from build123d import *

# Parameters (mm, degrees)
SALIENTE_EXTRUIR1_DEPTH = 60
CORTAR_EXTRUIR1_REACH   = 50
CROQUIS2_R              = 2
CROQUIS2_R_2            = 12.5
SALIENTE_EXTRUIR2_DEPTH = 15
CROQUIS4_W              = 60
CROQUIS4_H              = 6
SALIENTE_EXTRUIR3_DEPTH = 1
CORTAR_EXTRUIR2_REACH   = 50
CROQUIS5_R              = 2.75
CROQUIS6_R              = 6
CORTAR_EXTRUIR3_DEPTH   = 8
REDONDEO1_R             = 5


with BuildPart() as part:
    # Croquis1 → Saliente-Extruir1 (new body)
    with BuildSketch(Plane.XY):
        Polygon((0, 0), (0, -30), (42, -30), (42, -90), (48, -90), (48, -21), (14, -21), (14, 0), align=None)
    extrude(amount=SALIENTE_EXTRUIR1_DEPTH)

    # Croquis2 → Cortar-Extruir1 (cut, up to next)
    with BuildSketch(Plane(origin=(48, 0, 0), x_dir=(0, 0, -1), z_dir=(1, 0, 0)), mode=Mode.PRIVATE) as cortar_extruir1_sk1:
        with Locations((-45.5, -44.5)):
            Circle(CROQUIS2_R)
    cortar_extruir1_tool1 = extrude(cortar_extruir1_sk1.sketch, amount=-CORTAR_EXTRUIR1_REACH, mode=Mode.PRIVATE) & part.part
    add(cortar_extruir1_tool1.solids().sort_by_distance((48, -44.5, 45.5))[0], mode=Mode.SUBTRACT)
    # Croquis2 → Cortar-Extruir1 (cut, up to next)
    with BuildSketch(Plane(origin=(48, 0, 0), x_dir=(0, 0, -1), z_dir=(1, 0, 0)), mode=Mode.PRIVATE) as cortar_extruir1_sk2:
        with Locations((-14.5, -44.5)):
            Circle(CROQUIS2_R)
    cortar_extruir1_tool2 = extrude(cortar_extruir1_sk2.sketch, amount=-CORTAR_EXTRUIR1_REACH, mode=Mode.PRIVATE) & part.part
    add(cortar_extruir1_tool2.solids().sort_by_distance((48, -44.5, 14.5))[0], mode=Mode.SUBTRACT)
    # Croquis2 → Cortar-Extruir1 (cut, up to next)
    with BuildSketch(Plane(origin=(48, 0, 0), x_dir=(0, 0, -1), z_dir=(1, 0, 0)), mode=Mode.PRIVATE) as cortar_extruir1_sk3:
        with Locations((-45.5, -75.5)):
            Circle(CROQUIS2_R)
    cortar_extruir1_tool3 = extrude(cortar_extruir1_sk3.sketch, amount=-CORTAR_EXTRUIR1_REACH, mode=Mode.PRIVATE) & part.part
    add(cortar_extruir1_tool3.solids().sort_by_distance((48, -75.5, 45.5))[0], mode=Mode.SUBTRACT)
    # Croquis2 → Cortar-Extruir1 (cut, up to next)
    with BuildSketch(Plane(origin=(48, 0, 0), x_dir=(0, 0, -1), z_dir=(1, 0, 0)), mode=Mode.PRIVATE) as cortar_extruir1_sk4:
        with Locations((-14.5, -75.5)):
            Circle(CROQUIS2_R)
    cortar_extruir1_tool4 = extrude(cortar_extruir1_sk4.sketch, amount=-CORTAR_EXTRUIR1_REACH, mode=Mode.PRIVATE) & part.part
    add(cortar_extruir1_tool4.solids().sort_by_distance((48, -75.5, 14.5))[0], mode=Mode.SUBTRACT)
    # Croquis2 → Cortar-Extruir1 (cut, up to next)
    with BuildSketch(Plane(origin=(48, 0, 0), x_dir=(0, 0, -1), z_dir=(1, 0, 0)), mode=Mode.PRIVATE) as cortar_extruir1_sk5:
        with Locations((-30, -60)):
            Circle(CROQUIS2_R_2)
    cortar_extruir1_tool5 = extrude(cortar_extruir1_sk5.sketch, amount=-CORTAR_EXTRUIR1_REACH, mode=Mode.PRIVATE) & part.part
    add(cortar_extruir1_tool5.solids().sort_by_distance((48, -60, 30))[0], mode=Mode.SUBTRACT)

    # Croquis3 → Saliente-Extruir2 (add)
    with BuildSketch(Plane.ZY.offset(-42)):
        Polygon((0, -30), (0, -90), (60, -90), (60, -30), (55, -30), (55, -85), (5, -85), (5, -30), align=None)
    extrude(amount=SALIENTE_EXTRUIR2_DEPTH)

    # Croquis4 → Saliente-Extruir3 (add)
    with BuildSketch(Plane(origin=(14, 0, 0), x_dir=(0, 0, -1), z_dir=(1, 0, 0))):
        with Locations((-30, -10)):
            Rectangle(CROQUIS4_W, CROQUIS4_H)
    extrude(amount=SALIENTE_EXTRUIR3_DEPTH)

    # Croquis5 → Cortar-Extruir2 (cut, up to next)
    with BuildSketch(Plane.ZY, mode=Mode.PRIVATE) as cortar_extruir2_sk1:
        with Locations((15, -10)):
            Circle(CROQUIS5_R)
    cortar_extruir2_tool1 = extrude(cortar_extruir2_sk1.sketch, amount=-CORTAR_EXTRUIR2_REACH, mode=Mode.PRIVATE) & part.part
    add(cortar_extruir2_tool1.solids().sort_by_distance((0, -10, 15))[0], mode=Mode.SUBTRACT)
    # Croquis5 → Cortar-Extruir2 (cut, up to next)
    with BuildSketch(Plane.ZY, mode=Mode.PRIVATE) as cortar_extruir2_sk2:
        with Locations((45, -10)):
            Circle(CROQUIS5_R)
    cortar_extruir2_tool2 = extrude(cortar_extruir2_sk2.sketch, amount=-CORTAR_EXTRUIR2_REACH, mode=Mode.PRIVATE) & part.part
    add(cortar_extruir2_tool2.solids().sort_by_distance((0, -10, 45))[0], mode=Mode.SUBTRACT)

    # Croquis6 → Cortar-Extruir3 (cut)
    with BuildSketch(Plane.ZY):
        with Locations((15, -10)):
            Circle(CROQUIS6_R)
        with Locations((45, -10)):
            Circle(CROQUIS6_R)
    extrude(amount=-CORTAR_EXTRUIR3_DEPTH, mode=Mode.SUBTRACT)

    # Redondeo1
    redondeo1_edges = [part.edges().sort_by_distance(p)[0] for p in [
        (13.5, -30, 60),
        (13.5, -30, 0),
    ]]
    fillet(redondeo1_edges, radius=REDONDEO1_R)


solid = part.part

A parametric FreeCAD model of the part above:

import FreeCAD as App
import Part
import Sketcher
from FreeCAD import Vector


def edges_at(feature, points):
    """Names of the edges that pass closest to the given points."""
    edges = feature.Shape.Edges
    near = lambda p: min(range(len(edges)), key=lambda i: edges[i].distToShape(Part.Vertex(*p))[0])
    return sorted({f"Edge{near(p) + 1}" for p in points})


def add_polygon(sketch, points):
    """Adds a closed chain of lines whose ends are joined by coincident constraints."""
    first, n = sketch.GeometryCount, len(points)
    for a, b in zip(points, points[1:] + points[:1]):
        sketch.addGeometry(Part.LineSegment(App.Vector(*a, 0), App.Vector(*b, 0)), False)
    for i in range(n):
        sketch.addConstraint(Sketcher.Constraint("Coincident", first + i, 2, first + (i + 1) % n, 1))

doc = App.newDocument("Part")
body = doc.addObject("PartDesign::Body", "Body")

# Sketch on XY plane
sketch1 = doc.addObject("Sketcher::SketchObject", "Sketch")
body.addObject(sketch1)
sketch1.AttachmentSupport = (doc.XY_Plane, [""])
sketch1.MapMode = "FlatFace"
add_polygon(sketch1, [(0, 0), (0, -30), (42, -30), (42, -90), (48, -90), (48, -21), (14, -21), (14, 0)])  # lines 0-7
sketch1.addConstraint([
    Sketcher.Constraint("Vertical", 0),
    Sketcher.Constraint("Horizontal", 1),
    Sketcher.Constraint("Vertical", 2),
    Sketcher.Constraint("Horizontal", 3),
    Sketcher.Constraint("Vertical", 4),
    Sketcher.Constraint("Horizontal", 5),
    Sketcher.Constraint("Vertical", 6),
    Sketcher.Constraint("Horizontal", 7),
    Sketcher.Constraint("Coincident", 7, 2, -1, 1),
    Sketcher.Constraint("DistanceX", 1, 1, 1, 2, 42.0),
    Sketcher.Constraint("DistanceX", 3, 1, 3, 2, 6.0),
    Sketcher.Constraint("DistanceX", 5, 2, 5, 1, 34.0),
    Sketcher.Constraint("DistanceY", 0, 2, 0, 1, 30.0),
    Sketcher.Constraint("DistanceY", 2, 2, 2, 1, 60.0),
    Sketcher.Constraint("DistanceY", 4, 1, 4, 2, 69.0),
])
pad1 = doc.addObject("PartDesign::Pad", "Pad")
body.addObject(pad1)
pad1.Profile = sketch1
pad1.Length = 60

# Sketch on YZ plane
sketch2 = doc.addObject("Sketcher::SketchObject", "Sketch001")
body.addObject(sketch2)
sketch2.AttachmentSupport = (doc.YZ_Plane, [""])
sketch2.MapMode = "FlatFace"
sketch2.AttachmentOffset = App.Placement(Vector(0, 0, 48), App.Rotation())
sketch2.addGeometry(Part.Circle(Vector(-44.5, 45.5, 0), Vector(0, 0, 1), 2), False)
sketch2.addConstraint([
    Sketcher.Constraint("Diameter", 0, 4.0),
    Sketcher.Constraint("DistanceX", 0, 3, -1, 1, 44.5),
    Sketcher.Constraint("DistanceY", -1, 1, 0, 3, 45.5),
])
pocket1 = doc.addObject("PartDesign::Pocket", "Pocket")
body.addObject(pocket1)
pocket1.Profile = sketch2
pocket1.Type = "UpToFirst"

# Sketch on YZ plane
sketch3 = doc.addObject("Sketcher::SketchObject", "Sketch002")
body.addObject(sketch3)
sketch3.AttachmentSupport = (doc.YZ_Plane, [""])
sketch3.MapMode = "FlatFace"
sketch3.AttachmentOffset = App.Placement(Vector(0, 0, 48), App.Rotation())
sketch3.addGeometry(Part.Circle(Vector(-44.5, 14.5, 0), Vector(0, 0, 1), 2), False)
sketch3.addConstraint([
    Sketcher.Constraint("Diameter", 0, 4.0),
    Sketcher.Constraint("DistanceX", 0, 3, -1, 1, 44.5),
    Sketcher.Constraint("DistanceY", -1, 1, 0, 3, 14.5),
])
pocket2 = doc.addObject("PartDesign::Pocket", "Pocket001")
body.addObject(pocket2)
pocket2.Profile = sketch3
pocket2.Type = "UpToFirst"

# Sketch on YZ plane
sketch4 = doc.addObject("Sketcher::SketchObject", "Sketch003")
body.addObject(sketch4)
sketch4.AttachmentSupport = (doc.YZ_Plane, [""])
sketch4.MapMode = "FlatFace"
sketch4.AttachmentOffset = App.Placement(Vector(0, 0, 48), App.Rotation())
sketch4.addGeometry(Part.Circle(Vector(-75.5, 45.5, 0), Vector(0, 0, 1), 2), False)
sketch4.addConstraint([
    Sketcher.Constraint("Diameter", 0, 4.0),
    Sketcher.Constraint("DistanceX", 0, 3, -1, 1, 75.5),
    Sketcher.Constraint("DistanceY", -1, 1, 0, 3, 45.5),
])
pocket3 = doc.addObject("PartDesign::Pocket", "Pocket002")
body.addObject(pocket3)
pocket3.Profile = sketch4
pocket3.Type = "UpToFirst"

# Sketch on YZ plane
sketch5 = doc.addObject("Sketcher::SketchObject", "Sketch004")
body.addObject(sketch5)
sketch5.AttachmentSupport = (doc.YZ_Plane, [""])
sketch5.MapMode = "FlatFace"
sketch5.AttachmentOffset = App.Placement(Vector(0, 0, 48), App.Rotation())
sketch5.addGeometry(Part.Circle(Vector(-75.5, 14.5, 0), Vector(0, 0, 1), 2), False)
sketch5.addConstraint([
    Sketcher.Constraint("Diameter", 0, 4.0),
    Sketcher.Constraint("DistanceX", 0, 3, -1, 1, 75.5),
    Sketcher.Constraint("DistanceY", -1, 1, 0, 3, 14.5),
])
pocket4 = doc.addObject("PartDesign::Pocket", "Pocket003")
body.addObject(pocket4)
pocket4.Profile = sketch5
pocket4.Type = "UpToFirst"

# Sketch on YZ plane
sketch6 = doc.addObject("Sketcher::SketchObject", "Sketch005")
body.addObject(sketch6)
sketch6.AttachmentSupport = (doc.YZ_Plane, [""])
sketch6.MapMode = "FlatFace"
sketch6.AttachmentOffset = App.Placement(Vector(0, 0, 48), App.Rotation())
sketch6.addGeometry(Part.Circle(Vector(-60, 30, 0), Vector(0, 0, 1), 12), False)
sketch6.addConstraint([
    Sketcher.Constraint("Diameter", 0, 25.0),
    Sketcher.Constraint("DistanceX", 0, 3, -1, 1, 60.0),
    Sketcher.Constraint("DistanceY", -1, 1, 0, 3, 30.0),
])
pocket5 = doc.addObject("PartDesign::Pocket", "Pocket004")
body.addObject(pocket5)
pocket5.Profile = sketch6
pocket5.Type = "UpToFirst"

# Sketch on YZ plane
sketch7 = doc.addObject("Sketcher::SketchObject", "Sketch006")
body.addObject(sketch7)
sketch7.AttachmentSupport = (doc.YZ_Plane, [""])
sketch7.MapMode = "FlatFace"
sketch7.AttachmentOffset = App.Placement(Vector(0, 0, 42), App.Rotation())
add_polygon(sketch7, [(-30, 0), (-90, 0), (-90, 60), (-30, 60), (-30, 55), (-85, 55), (-85, 5), (-30, 5)])  # lines 0-7
sketch7.addConstraint([
    Sketcher.Constraint("Horizontal", 0),
    Sketcher.Constraint("Vertical", 1),
    Sketcher.Constraint("Horizontal", 2),
    Sketcher.Constraint("Vertical", 3),
    Sketcher.Constraint("Horizontal", 4),
    Sketcher.Constraint("Vertical", 5),
    Sketcher.Constraint("Horizontal", 6),
    Sketcher.Constraint("Vertical", 7),
    Sketcher.Constraint("PointOnObject", 0, 2, -1),
    Sketcher.Constraint("Vertical", 3, 2, 6, 2),
    Sketcher.Constraint("Equal", 2, 1),
    Sketcher.Constraint("Equal", 3, 7),
    Sketcher.Constraint("DistanceX", 0, 2, 0, 1, 60.0),
    Sketcher.Constraint("DistanceX", 4, 2, 4, 1, 55.0),
    Sketcher.Constraint("DistanceY", 3, 2, 3, 1, 5.0),
    Sketcher.Constraint("DistanceX", 0, 2, -1, 1, 90.0),
])
pad2 = doc.addObject("PartDesign::Pad", "Pad001")
body.addObject(pad2)
pad2.Profile = sketch7
pad2.Length = 15
pad2.Reversed = True

# Sketch on YZ plane
sketch8 = doc.addObject("Sketcher::SketchObject", "Sketch007")
body.addObject(sketch8)
sketch8.AttachmentSupport = (doc.YZ_Plane, [""])
sketch8.MapMode = "FlatFace"
sketch8.AttachmentOffset = App.Placement(Vector(0, 0, 14), App.Rotation())
add_polygon(sketch8, [(-7, 60), (-13, 60), (-13, 0), (-7, 0)])  # lines 0-3
sketch8.addConstraint([
    Sketcher.Constraint("Horizontal", 0),
    Sketcher.Constraint("Vertical", 1),
    Sketcher.Constraint("Horizontal", 2),
    Sketcher.Constraint("Vertical", 3),
    Sketcher.Constraint("PointOnObject", 1, 2, -1),
    Sketcher.Constraint("DistanceX", 0, 2, 0, 1, 6.0),
    Sketcher.Constraint("DistanceY", 1, 2, 1, 1, 60.0),
    Sketcher.Constraint("DistanceX", 0, 2, -1, 1, 13.0),
])
pad3 = doc.addObject("PartDesign::Pad", "Pad002")
body.addObject(pad3)
pad3.Profile = sketch8
pad3.Length = 1

# Sketch on YZ plane
sketch9 = doc.addObject("Sketcher::SketchObject", "Sketch008")
body.addObject(sketch9)
sketch9.AttachmentSupport = (doc.YZ_Plane, [""])
sketch9.MapMode = "FlatFace"
sketch9.addGeometry(Part.Circle(Vector(-10, 15, 0), Vector(0, 0, 1), 2.8), False)
sketch9.addConstraint([
    Sketcher.Constraint("Diameter", 0, 5.5),
    Sketcher.Constraint("DistanceX", 0, 3, -1, 1, 10.0),
    Sketcher.Constraint("DistanceY", -1, 1, 0, 3, 15.0),
])
pocket6 = doc.addObject("PartDesign::Pocket", "Pocket005")
body.addObject(pocket6)
pocket6.Profile = sketch9
pocket6.Type = "UpToFirst"
pocket6.Reversed = True

# Sketch on YZ plane
sketch10 = doc.addObject("Sketcher::SketchObject", "Sketch009")
body.addObject(sketch10)
sketch10.AttachmentSupport = (doc.YZ_Plane, [""])
sketch10.MapMode = "FlatFace"
sketch10.addGeometry(Part.Circle(Vector(-10, 45, 0), Vector(0, 0, 1), 2.8), False)
sketch10.addConstraint([
    Sketcher.Constraint("Diameter", 0, 5.5),
    Sketcher.Constraint("DistanceX", 0, 3, -1, 1, 10.0),
    Sketcher.Constraint("DistanceY", -1, 1, 0, 3, 45.0),
])
pocket7 = doc.addObject("PartDesign::Pocket", "Pocket006")
body.addObject(pocket7)
pocket7.Profile = sketch10
pocket7.Type = "UpToFirst"
pocket7.Reversed = True

# Sketch on YZ plane
sketch11 = doc.addObject("Sketcher::SketchObject", "Sketch010")
body.addObject(sketch11)
sketch11.AttachmentSupport = (doc.YZ_Plane, [""])
sketch11.MapMode = "FlatFace"
sketch11.addGeometry([
    Part.Circle(Vector(-10, 15, 0), Vector(0, 0, 1), 6),
    Part.Circle(Vector(-10, 45, 0), Vector(0, 0, 1), 6),
], False)
sketch11.addConstraint([
    Sketcher.Constraint("Equal", 0, 1),
    Sketcher.Constraint("Vertical", 0, 3, 1, 3),
    Sketcher.Constraint("Diameter", 0, 12.0),
    Sketcher.Constraint("DistanceX", 0, 3, -1, 1, 10.0),
    Sketcher.Constraint("DistanceY", -1, 1, 0, 3, 15.0),
    Sketcher.Constraint("DistanceY", -1, 1, 1, 3, 45.0),
])
pocket8 = doc.addObject("PartDesign::Pocket", "Pocket007")
body.addObject(pocket8)
pocket8.Profile = sketch11
pocket8.Length = 8
pocket8.Reversed = True
doc.recompute()

fillet = doc.addObject("PartDesign::Fillet", "Fillet")
body.addObject(fillet)
fillet.Base = (pocket8, edges_at(pocket8, [(13.5, -30, 60), (13.5, -30, 0)]))
fillet.Radius = 5

doc.recompute()
